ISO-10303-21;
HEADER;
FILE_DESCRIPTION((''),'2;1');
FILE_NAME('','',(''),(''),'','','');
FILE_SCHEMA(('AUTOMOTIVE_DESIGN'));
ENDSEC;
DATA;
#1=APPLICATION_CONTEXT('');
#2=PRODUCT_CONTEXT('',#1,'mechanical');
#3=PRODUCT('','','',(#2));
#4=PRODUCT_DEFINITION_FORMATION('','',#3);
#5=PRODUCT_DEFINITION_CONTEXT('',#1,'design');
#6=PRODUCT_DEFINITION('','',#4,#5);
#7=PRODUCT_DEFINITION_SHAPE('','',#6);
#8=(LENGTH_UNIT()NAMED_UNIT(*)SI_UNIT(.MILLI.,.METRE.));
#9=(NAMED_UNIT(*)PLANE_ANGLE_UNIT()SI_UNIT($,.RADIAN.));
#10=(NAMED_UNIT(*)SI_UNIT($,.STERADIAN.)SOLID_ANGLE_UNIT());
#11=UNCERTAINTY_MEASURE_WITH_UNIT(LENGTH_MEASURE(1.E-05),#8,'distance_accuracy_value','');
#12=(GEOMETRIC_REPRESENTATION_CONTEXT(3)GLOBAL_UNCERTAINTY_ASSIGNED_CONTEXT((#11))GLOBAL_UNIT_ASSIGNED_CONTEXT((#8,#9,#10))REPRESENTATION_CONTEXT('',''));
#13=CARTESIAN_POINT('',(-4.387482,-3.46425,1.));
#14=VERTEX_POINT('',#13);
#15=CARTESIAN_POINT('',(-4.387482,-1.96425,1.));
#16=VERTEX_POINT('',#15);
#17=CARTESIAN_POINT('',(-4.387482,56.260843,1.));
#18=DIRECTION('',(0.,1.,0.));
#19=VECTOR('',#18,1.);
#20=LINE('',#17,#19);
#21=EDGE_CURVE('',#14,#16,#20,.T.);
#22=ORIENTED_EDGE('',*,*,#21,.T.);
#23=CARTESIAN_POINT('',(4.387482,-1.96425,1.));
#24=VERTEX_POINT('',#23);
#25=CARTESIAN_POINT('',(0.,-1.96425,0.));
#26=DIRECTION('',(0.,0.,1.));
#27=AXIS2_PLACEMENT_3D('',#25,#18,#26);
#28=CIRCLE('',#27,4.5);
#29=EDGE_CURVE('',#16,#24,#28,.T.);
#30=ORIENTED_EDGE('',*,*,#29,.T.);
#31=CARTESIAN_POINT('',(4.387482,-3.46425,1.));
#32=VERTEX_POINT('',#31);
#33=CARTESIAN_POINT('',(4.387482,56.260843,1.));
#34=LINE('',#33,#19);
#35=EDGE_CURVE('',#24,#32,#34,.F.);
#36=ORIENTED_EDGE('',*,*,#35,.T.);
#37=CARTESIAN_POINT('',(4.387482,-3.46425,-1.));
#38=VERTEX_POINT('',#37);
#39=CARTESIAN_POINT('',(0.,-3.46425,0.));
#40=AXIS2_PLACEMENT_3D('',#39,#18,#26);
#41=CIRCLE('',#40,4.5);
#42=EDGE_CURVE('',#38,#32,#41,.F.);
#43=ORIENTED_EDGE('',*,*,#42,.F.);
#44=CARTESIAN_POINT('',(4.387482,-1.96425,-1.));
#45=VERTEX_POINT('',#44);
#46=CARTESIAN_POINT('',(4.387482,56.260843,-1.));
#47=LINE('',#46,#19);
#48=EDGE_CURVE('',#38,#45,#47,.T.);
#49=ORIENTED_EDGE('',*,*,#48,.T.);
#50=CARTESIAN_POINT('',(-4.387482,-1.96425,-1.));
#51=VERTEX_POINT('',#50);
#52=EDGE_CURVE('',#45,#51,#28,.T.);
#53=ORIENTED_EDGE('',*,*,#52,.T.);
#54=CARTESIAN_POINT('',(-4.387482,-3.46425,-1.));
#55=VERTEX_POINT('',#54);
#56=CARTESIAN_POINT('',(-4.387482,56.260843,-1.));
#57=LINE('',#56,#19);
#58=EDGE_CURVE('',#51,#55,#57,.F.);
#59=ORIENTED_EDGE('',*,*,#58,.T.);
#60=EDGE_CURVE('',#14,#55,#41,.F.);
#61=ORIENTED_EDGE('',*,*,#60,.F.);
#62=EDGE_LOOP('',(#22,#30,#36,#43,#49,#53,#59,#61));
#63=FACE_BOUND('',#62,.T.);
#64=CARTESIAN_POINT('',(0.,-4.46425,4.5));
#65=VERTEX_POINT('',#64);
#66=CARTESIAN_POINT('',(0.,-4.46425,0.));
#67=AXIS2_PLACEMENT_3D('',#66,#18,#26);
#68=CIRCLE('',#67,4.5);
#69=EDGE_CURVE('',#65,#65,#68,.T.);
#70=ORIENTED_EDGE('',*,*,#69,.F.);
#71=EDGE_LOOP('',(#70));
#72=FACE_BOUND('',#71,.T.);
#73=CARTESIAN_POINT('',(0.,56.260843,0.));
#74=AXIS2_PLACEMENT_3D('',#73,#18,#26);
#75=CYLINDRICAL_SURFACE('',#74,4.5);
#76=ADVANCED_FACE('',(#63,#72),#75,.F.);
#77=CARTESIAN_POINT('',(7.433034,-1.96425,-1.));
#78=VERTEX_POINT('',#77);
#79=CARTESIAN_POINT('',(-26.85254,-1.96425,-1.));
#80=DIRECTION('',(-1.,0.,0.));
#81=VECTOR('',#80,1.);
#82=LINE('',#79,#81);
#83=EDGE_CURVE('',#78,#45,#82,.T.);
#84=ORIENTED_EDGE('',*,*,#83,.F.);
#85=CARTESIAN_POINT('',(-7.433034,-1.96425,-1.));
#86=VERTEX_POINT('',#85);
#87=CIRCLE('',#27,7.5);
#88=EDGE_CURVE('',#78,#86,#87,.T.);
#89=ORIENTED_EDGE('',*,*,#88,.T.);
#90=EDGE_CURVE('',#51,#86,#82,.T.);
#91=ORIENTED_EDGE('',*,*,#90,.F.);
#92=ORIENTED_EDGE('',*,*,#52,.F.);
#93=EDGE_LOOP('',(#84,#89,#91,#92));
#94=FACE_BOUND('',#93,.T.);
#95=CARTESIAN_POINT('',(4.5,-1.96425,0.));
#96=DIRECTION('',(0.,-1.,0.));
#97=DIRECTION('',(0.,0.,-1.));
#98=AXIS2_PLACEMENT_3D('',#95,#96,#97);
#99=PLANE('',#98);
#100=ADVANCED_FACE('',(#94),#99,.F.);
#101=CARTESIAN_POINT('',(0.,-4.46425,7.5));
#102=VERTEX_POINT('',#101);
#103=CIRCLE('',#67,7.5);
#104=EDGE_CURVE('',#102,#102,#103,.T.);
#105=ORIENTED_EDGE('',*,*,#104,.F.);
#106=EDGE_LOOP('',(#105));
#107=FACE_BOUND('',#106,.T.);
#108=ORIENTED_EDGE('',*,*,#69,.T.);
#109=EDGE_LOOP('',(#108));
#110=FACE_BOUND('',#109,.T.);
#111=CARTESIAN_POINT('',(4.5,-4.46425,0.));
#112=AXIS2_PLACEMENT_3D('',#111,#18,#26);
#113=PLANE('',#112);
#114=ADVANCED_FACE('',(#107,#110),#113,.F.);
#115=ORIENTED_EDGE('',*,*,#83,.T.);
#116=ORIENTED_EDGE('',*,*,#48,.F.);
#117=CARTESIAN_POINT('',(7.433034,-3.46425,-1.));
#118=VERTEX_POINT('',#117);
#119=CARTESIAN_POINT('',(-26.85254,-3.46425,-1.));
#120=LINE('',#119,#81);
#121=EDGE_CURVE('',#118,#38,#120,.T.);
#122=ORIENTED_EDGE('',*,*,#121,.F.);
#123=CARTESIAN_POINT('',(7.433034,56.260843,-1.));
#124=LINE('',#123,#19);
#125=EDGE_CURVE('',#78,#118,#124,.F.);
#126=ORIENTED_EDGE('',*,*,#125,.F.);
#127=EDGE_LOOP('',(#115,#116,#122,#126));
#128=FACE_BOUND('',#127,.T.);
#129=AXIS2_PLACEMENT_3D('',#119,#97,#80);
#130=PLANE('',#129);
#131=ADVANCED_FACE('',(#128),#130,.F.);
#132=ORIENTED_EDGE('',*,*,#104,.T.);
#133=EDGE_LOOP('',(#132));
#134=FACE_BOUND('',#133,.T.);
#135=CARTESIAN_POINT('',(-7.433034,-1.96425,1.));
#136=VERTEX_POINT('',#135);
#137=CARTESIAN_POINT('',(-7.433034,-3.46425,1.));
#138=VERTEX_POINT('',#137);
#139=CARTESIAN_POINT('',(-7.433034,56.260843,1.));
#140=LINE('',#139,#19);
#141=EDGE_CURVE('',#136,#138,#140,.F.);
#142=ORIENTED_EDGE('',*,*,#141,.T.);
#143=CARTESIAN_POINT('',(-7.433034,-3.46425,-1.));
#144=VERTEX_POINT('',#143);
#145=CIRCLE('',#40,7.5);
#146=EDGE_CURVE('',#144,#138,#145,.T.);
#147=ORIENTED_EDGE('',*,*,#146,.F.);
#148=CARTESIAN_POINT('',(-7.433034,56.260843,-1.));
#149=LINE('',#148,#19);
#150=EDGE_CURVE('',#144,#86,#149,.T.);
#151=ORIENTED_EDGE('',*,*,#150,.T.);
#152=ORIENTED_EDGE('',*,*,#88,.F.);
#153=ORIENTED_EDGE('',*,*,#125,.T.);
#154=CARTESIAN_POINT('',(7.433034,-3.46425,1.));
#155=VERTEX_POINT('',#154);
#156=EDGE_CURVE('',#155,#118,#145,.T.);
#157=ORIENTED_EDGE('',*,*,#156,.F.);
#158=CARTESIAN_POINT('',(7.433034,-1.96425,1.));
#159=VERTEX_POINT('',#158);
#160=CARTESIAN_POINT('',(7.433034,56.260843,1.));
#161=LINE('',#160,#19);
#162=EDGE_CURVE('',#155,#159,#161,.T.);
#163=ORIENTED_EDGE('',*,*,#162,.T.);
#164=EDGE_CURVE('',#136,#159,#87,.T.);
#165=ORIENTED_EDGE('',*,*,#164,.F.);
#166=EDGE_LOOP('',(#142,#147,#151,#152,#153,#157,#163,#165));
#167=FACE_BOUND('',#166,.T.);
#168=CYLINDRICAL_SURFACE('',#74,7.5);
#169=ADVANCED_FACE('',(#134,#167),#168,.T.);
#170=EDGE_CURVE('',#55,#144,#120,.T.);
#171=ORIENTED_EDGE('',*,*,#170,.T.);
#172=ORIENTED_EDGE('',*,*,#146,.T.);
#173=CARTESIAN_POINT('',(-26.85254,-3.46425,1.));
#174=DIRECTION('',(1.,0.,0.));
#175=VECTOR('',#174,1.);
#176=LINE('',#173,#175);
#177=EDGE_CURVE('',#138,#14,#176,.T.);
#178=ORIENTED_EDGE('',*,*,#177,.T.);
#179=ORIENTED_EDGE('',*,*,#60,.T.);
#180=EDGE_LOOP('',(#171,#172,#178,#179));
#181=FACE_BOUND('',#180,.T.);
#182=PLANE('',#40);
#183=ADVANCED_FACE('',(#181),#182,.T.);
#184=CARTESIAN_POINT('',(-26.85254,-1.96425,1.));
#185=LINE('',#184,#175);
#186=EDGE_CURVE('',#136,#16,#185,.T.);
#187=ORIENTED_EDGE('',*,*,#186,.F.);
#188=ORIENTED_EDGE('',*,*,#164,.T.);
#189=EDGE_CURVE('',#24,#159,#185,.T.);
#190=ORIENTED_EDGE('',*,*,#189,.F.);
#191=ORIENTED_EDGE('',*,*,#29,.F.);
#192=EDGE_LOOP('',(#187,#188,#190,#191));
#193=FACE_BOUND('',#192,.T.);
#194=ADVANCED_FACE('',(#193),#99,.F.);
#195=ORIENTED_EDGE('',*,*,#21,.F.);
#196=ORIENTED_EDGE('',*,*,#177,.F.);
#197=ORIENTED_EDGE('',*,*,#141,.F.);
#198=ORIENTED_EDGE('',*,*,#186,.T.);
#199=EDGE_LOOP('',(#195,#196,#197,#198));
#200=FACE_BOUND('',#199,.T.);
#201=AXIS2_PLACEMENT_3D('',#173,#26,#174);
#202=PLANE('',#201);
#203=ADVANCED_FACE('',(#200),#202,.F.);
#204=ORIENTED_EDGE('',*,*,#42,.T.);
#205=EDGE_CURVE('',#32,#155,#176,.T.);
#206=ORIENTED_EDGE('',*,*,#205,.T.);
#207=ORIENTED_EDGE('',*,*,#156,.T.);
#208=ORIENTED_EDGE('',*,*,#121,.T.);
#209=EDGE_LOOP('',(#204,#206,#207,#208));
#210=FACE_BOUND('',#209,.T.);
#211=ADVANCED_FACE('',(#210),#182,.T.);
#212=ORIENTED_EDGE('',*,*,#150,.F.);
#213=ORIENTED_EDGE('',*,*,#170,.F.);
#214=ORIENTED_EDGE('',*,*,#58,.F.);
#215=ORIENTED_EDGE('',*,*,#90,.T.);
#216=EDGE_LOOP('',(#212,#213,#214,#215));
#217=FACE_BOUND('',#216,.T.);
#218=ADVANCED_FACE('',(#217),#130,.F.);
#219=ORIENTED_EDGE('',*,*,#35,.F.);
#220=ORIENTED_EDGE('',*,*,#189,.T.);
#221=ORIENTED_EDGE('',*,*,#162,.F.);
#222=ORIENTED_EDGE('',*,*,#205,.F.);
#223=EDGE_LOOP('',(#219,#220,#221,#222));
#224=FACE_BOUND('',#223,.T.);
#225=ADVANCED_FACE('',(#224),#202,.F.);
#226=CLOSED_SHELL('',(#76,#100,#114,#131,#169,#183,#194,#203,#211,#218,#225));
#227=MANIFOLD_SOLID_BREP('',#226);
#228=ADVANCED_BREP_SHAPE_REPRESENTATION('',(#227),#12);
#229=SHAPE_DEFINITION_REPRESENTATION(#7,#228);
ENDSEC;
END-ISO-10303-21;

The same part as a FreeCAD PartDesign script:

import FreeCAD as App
import Part
import Sketcher


def add_polygon(sketch, points):
    """Adds a closed chain of lines whose ends are joined by coincident constraints."""
    first, n = sketch.GeometryCount, len(points)
    for a, b in zip(points, points[1:] + points[:1]):
        sketch.addGeometry(Part.LineSegment(App.Vector(*a, 0), App.Vector(*b, 0)), False)
    for i in range(n):
        sketch.addConstraint(Sketcher.Constraint("Coincident", first + i, 2, first + (i + 1) % n, 1))

doc = App.newDocument("Part")
params = doc.addObject("Spreadsheet::Sheet", "Params")
for row, (alias, value) in enumerate([
    ("sketch1_width", "3 mm"),
    ("sketch1_height", "2.5 mm"),
    ("revolution_angle", "360 deg"),
    ("sketch2_height", "2 mm"),
    ("pocket1_length", "1.5 mm"),
], start=1):
    params.set(f"A{row}", alias)
    params.set(f"B{row}", "=" + value)
    params.setAlias(f"B{row}", alias)

body = doc.addObject("PartDesign::Body", "Body")

# Sketch on XY plane
sketch1 = body.newObject("Sketcher::SketchObject", "Sketch")
sketch1.AttachmentSupport = (doc.getObject("XY_Plane"), [""])
sketch1.MapMode = "FlatFace"
add_polygon(sketch1, [(4.5, -1.96425), (4.5, -4.46425), (7.5, -4.46425), (7.5, -1.96425)])  # lines 0-3
sketch1.addConstraint(Sketcher.Constraint("Vertical", 0))
sketch1.addConstraint(Sketcher.Constraint("Horizontal", 1))
sketch1.addConstraint(Sketcher.Constraint("Vertical", 2))
sketch1.addConstraint(Sketcher.Constraint("Horizontal", 3))
sketch1.addConstraint(Sketcher.Constraint("DistanceX", 1, 1, 1, 2, 3.0))
sketch1.addConstraint(Sketcher.Constraint("DistanceY", 0, 2, 0, 1, 2.5))
sketch1.addConstraint(Sketcher.Constraint("DistanceX", -1, 1, 0, 2, 4.5))
sketch1.addConstraint(Sketcher.Constraint("DistanceY", 0, 2, -1, 1, 4.46425))
sketch1.setExpression("Constraints[8]", "Params.sketch1_width")
sketch1.setExpression("Constraints[9]", "Params.sketch1_height")
revolution = body.newObject("PartDesign::Revolution", "Revolution")
revolution.Profile = sketch1
revolution.ReferenceAxis = (sketch1, ["V_Axis"])
revolution.setExpression("Angle", "Params.revolution_angle")

# Sketch on XZ plane
sketch2 = body.newObject("Sketcher::SketchObject", "Sketch001")
sketch2.AttachmentSupport = (doc.getObject("XZ_Plane"), [""])
sketch2.MapMode = "FlatFace"
sketch2.AttachmentOffset = App.Placement(App.Vector(0, 0, 1.96425), App.Rotation())
add_polygon(sketch2, [(-26.85254, -1), (-26.85254, 1), (26.85254, 1), (26.85254, -1)])  # lines 0-3
sketch2.addConstraint(Sketcher.Constraint("Vertical", 0))
sketch2.addConstraint(Sketcher.Constraint("Horizontal", 1))
sketch2.addConstraint(Sketcher.Constraint("Vertical", 2))
sketch2.addConstraint(Sketcher.Constraint("Horizontal", 3))
sketch2.addConstraint(Sketcher.Constraint("Symmetric", 0, 2, 2, 2, -1, 1))
sketch2.addConstraint(Sketcher.Constraint("DistanceY", 0, 1, 0, 2, 2.0))
sketch2.addConstraint(Sketcher.Constraint("DistanceX", 1, 1, 1, 2, 53.705081))
sketch2.setExpression("Constraints[9]", "Params.sketch2_height")
pocket1 = body.newObject("PartDesign::Pocket", "Pocket")
pocket1.Profile = sketch2
pocket1.setExpression("Length", "Params.pocket1_length")
pocket1.Reversed = True

doc.recompute()
